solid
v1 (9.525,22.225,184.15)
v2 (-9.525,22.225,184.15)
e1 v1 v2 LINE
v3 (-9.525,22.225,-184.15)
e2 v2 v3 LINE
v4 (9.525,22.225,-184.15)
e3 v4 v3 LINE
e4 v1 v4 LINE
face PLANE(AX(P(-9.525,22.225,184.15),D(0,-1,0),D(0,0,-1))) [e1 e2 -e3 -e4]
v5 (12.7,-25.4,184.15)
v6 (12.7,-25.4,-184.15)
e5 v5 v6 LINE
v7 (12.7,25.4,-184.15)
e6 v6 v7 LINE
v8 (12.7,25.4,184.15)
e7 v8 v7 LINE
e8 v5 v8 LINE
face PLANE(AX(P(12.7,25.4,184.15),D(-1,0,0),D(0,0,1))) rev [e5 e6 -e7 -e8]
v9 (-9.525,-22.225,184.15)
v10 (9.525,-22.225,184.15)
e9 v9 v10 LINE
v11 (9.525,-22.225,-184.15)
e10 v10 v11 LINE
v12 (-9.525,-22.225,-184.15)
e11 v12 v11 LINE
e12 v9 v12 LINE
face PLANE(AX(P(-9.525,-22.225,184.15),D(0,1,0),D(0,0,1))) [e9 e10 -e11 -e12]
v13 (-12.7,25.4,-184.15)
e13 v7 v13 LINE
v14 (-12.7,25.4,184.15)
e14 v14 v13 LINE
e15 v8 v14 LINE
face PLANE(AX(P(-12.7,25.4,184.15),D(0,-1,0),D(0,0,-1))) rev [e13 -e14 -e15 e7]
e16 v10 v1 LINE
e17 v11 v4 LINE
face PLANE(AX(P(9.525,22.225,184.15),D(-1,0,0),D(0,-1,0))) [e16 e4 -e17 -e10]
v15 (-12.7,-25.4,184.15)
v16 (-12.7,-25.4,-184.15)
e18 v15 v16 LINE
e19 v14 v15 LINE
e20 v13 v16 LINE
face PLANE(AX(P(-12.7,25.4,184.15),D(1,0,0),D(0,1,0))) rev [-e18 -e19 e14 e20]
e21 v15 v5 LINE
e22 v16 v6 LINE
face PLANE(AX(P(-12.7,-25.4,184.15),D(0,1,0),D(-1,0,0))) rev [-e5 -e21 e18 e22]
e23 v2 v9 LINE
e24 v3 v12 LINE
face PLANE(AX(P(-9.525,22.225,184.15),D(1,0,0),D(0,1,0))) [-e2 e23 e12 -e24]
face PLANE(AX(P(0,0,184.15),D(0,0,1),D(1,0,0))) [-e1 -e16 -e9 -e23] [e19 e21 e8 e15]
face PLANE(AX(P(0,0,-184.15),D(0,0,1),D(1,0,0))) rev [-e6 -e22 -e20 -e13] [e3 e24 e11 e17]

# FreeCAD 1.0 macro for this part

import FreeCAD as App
import Part
import Sketcher

V = App.Vector
Q = App.Units.Quantity

doc = App.newDocument("Part")
body = doc.addObject("PartDesign::Body", "Body")

sketch1 = doc.addObject("Sketcher::SketchObject", "Sketch")
body.addObject(sketch1)
sketch1.AttachmentSupport = (doc.XY_Plane, [""])
sketch1.MapMode = "FlatFace"
sketch1.addGeometry([
    Part.LineSegment(V(-12.7, 25.4, 0), V(-12.7, -25.4, 0)),
    Part.LineSegment(V(-12.7, -25.4, 0), V(12.7, -25.4, 0)),
    Part.LineSegment(V(12.7, -25.4, 0), V(12.7, 25.4, 0)),
    Part.LineSegment(V(12.7, 25.4, 0), V(-12.7, 25.4, 0)),
    Part.LineSegment(V(9.525, -22.225, 0), V(-9.525, -22.225, 0)),
    Part.LineSegment(V(-9.525, -22.225, 0), V(-9.525, 22.225, 0)),
    Part.LineSegment(V(-9.525, 22.225, 0), V(9.525, 22.225, 0)),
    Part.LineSegment(V(9.525, 22.225, 0), V(9.525, -22.225, 0)),
], False)
sketch1.addConstraint([
    Sketcher.Constraint("Coincident", 0, 2, 1, 1),
    Sketcher.Constraint("Coincident", 1, 2, 2, 1),
    Sketcher.Constraint("Coincident", 2, 2, 3, 1),
    Sketcher.Constraint("Coincident", 3, 2, 0, 1),
    Sketcher.Constraint("Coincident", 4, 2, 5, 1),
    Sketcher.Constraint("Coincident", 5, 2, 6, 1),
    Sketcher.Constraint("Coincident", 6, 2, 7, 1),
    Sketcher.Constraint("Coincident", 7, 2, 4, 1),
    Sketcher.Constraint("Vertical", 0),
    Sketcher.Constraint("Horizontal", 1),
    Sketcher.Constraint("Vertical", 2),
    Sketcher.Constraint("Horizontal", 3),
    Sketcher.Constraint("Horizontal", 4),
    Sketcher.Constraint("Vertical", 5),
    Sketcher.Constraint("Horizontal", 6),
    Sketcher.Constraint("Vertical", 7),
    Sketcher.Constraint("Symmetric", 0, 2, 2, 2, -1, 1),
    Sketcher.Constraint("Symmetric", 4, 2, 6, 2, -1, 1),
    Sketcher.Constraint("DistanceX", 1, 1, 1, 2, Q("1 in")),
    Sketcher.Constraint("DistanceY", 0, 2, 0, 1, Q("2 in")),
    Sketcher.Constraint("DistanceX", 4, 2, 4, 1, Q("0.75 in")),
    Sketcher.Constraint("DistanceY", 5, 1, 5, 2, Q("1.75 in")),
])
pad1 = doc.addObject("PartDesign::Pad", "Pad")
body.addObject(pad1)
pad1.Profile = sketch1
pad1.Length = Q("14.5 in")
pad1.Midplane = True

doc.recompute()
